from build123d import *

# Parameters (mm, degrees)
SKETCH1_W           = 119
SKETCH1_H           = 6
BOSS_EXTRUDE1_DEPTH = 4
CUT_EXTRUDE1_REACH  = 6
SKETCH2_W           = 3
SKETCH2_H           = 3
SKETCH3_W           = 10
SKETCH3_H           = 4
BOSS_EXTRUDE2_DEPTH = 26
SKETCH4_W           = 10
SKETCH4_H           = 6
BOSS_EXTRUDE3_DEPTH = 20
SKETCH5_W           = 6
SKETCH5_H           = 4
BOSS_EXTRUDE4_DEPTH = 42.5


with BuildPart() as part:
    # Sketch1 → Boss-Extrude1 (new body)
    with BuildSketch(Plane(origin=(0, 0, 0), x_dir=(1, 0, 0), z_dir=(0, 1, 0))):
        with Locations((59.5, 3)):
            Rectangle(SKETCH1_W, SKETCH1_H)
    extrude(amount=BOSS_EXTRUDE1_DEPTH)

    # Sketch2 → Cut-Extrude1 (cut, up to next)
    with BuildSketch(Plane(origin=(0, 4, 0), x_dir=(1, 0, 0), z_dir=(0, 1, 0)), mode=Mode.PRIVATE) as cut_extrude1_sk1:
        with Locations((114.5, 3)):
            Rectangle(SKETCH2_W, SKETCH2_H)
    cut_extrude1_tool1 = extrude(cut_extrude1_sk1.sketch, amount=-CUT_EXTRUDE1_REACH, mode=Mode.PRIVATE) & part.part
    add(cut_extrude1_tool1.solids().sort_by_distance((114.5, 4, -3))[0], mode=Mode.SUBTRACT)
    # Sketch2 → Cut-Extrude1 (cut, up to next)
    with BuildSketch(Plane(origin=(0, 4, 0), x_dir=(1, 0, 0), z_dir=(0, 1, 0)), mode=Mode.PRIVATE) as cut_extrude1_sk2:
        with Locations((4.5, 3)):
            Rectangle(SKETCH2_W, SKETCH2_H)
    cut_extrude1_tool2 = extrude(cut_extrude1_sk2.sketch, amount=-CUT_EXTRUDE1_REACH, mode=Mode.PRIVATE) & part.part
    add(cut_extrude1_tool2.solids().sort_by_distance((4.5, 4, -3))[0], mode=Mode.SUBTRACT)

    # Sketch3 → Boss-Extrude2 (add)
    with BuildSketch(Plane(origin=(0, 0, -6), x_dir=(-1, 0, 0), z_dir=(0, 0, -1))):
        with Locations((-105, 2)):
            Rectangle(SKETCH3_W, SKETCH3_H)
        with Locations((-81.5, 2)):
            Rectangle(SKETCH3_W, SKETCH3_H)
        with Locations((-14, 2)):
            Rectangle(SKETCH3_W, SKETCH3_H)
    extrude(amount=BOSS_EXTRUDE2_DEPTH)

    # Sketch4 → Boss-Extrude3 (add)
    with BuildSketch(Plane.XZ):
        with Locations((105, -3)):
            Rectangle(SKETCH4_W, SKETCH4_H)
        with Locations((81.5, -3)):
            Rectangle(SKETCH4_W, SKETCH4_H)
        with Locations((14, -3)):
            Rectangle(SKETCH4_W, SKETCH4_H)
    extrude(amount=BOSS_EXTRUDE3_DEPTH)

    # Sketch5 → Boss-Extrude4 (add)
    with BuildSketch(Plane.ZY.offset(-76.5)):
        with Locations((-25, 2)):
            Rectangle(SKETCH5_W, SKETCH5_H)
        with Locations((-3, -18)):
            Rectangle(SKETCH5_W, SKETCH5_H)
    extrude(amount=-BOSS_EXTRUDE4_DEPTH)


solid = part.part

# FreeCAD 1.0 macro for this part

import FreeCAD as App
import Part
import Sketcher

V = App.Vector
Q = App.Units.Quantity


def add_polygon(sketch, points):
    """Adds a closed chain of lines whose ends are joined by coincident constraints."""
    first, n = sketch.GeometryCount, len(points)
    for a, b in zip(points, points[1:] + points[:1]):
        sketch.addGeometry(Part.LineSegment(App.Vector(*a, 0), App.Vector(*b, 0)), False)
    for i in range(n):
        sketch.addConstraint(Sketcher.Constraint("Coincident", first + i, 2, first + (i + 1) % n, 1))

doc = App.newDocument("Part")
body = doc.addObject("PartDesign::Body", "Body")

# Sketch on XZ plane
sketch1 = body.newObject("Sketcher::SketchObject", "Sketch")
sketch1.AttachmentSupport = (doc.getObject("XZ_Plane"), [""])
sketch1.MapMode = "FlatFace"
add_polygon(sketch1, [(0, -6), (0, 0), (119, 0), (119, -6)])  # lines 0-3
sketch1.addConstraint([
    Sketcher.Constraint("Vertical", 0),
    Sketcher.Constraint("Horizontal", 1),
    Sketcher.Constraint("Vertical", 2),
    Sketcher.Constraint("Horizontal", 3),
    Sketcher.Constraint("Coincident", 0, 2, -1, 1),
    Sketcher.Constraint("DistanceX", 1, 1, 1, 2, Q("119 mm")),
    Sketcher.Constraint("DistanceY", 0, 1, 0, 2, Q("6 mm")),
])
pad1 = body.newObject("PartDesign::Pad", "Pad")
pad1.Profile = sketch1
pad1.Length = 4
pad1.Reversed = True

# Sketch on XZ plane
sketch2 = body.newObject("Sketcher::SketchObject", "Sketch001")
sketch2.AttachmentSupport = (doc.getObject("XZ_Plane"), [""])
sketch2.MapMode = "FlatFace"
sketch2.AttachmentOffset = App.Placement(V(0, 0, -4), App.Rotation())
add_polygon(sketch2, [(113, -4.5), (113, -1.5), (116, -1.5), (116, -4.5)])  # lines 0-3
sketch2.addConstraint([
    Sketcher.Constraint("Vertical", 0),
    Sketcher.Constraint("Horizontal", 1),
    Sketcher.Constraint("Vertical", 2),
    Sketcher.Constraint("Horizontal", 3),
    Sketcher.Constraint("Equal", 3, 0),
    Sketcher.Constraint("DistanceX", 1, 1, 1, 2, Q("3 mm")),
    Sketcher.Constraint("DistanceX", -1, 1, 0, 2, Q("113 mm")),
    Sketcher.Constraint("DistanceY", 0, 2, -1, 1, Q("1.5 mm")),
])
pocket1 = body.newObject("PartDesign::Pocket", "Pocket")
pocket1.Profile = sketch2
pocket1.Type = "UpToFirst"
pocket1.Reversed = True

# Sketch on XZ plane
sketch3 = body.newObject("Sketcher::SketchObject", "Sketch002")
sketch3.AttachmentSupport = (doc.getObject("XZ_Plane"), [""])
sketch3.MapMode = "FlatFace"
sketch3.AttachmentOffset = App.Placement(V(0, 0, -4), App.Rotation())
add_polygon(sketch3, [(3, -4.5), (3, -1.5), (6, -1.5), (6, -4.5)])  # lines 0-3
sketch3.addConstraint([
    Sketcher.Constraint("Vertical", 0),
    Sketcher.Constraint("Horizontal", 1),
    Sketcher.Constraint("Vertical", 2),
    Sketcher.Constraint("Horizontal", 3),
    Sketcher.Constraint("Equal", 3, 0),
    Sketcher.Constraint("DistanceX", 1, 1, 1, 2, Q("3 mm")),
    Sketcher.Constraint("DistanceX", -1, 1, 0, 2, Q("3 mm")),
    Sketcher.Constraint("DistanceY", 0, 2, -1, 1, Q("1.5 mm")),
])
pocket2 = body.newObject("PartDesign::Pocket", "Pocket001")
pocket2.Profile = sketch3
pocket2.Type = "UpToFirst"
pocket2.Reversed = True

# Sketch on XY plane
sketch4 = body.newObject("Sketcher::SketchObject", "Sketch003")
sketch4.AttachmentSupport = (doc.getObject("XY_Plane"), [""])
sketch4.MapMode = "FlatFace"
sketch4.AttachmentOffset = App.Placement(V(0, 0, -6), App.Rotation())
add_polygon(sketch4, [(110, 4), (110, 0), (100, 0), (100, 4)])  # lines 0-3
add_polygon(sketch4, [(86.5, 4), (86.5, 0), (76.5, 0), (76.5, 4)])  # lines 4-7
add_polygon(sketch4, [(19, 4), (19, 0), (9, 0), (9, 4)])  # lines 8-11
sketch4.addConstraint([
    Sketcher.Constraint("Vertical", 0),
    Sketcher.Constraint("Horizontal", 1),
    Sketcher.Constraint("Vertical", 2),
    Sketcher.Constraint("Horizontal", 3),
    Sketcher.Constraint("Vertical", 4),
    Sketcher.Constraint("Horizontal", 5),
    Sketcher.Constraint("Vertical", 6),
    Sketcher.Constraint("Horizontal", 7),
    Sketcher.Constraint("Vertical", 8),
    Sketcher.Constraint("Horizontal", 9),
    Sketcher.Constraint("Vertical", 10),
    Sketcher.Constraint("Horizontal", 11),
    Sketcher.Constraint("PointOnObject", 0, 2, -1),
    Sketcher.Constraint("PointOnObject", 4, 2, -1),
    Sketcher.Constraint("PointOnObject", 8, 2, -1),
    Sketcher.Constraint("Horizontal", 3, 2, 6, 2),
    Sketcher.Constraint("Horizontal", 7, 2, 10, 2),
    Sketcher.Constraint("Equal", 3, 5),
    Sketcher.Constraint("Equal", 7, 9),
    Sketcher.Constraint("DistanceX", 1, 2, 1, 1, Q("10 mm")),
    Sketcher.Constraint("DistanceY", 0, 2, 0, 1, Q("4 mm")),
    Sketcher.Constraint("DistanceX", -1, 1, 0, 2, Q("110 mm")),
    Sketcher.Constraint("DistanceX", -1, 1, 8, 2, Q("19 mm")),
    Sketcher.Constraint("DistanceX", -1, 1, 4, 2, Q("86.5 mm")),
])
pad2 = body.newObject("PartDesign::Pad", "Pad001")
pad2.Profile = sketch4
pad2.Length = 26
pad2.Reversed = True

# Sketch on XZ plane
sketch5 = body.newObject("Sketcher::SketchObject", "Sketch004")
sketch5.AttachmentSupport = (doc.getObject("XZ_Plane"), [""])
sketch5.MapMode = "FlatFace"
add_polygon(sketch5, [(100, 0), (100, -6), (110, -6), (110, 0)])  # lines 0-3
add_polygon(sketch5, [(76, 0), (76, -6), (86, -6), (86, 0)])  # lines 4-7
add_polygon(sketch5, [(9, 0), (9, -6), (19, -6), (19, 0)])  # lines 8-11
sketch5.addConstraint([
    Sketcher.Constraint("Vertical", 0),
    Sketcher.Constraint("Horizontal", 1),
    Sketcher.Constraint("Vertical", 2),
    Sketcher.Constraint("Horizontal", 3),
    Sketcher.Constraint("Vertical", 4),
    Sketcher.Constraint("Horizontal", 5),
    Sketcher.Constraint("Vertical", 6),
    Sketcher.Constraint("Horizontal", 7),
    Sketcher.Constraint("Vertical", 8),
    Sketcher.Constraint("Horizontal", 9),
    Sketcher.Constraint("Vertical", 10),
    Sketcher.Constraint("Horizontal", 11),
    Sketcher.Constraint("PointOnObject", 2, 2, -1),
    Sketcher.Constraint("PointOnObject", 6, 2, -1),
    Sketcher.Constraint("PointOnObject", 10, 2, -1),
    Sketcher.Constraint("Horizontal", 1, 2, 4, 2),
    Sketcher.Constraint("Horizontal", 5, 2, 8, 2),
    Sketcher.Constraint("Equal", 3, 5),
    Sketcher.Constraint("Equal", 7, 9),
    Sketcher.Constraint("DistanceX", 1, 1, 1, 2, Q("10 mm")),
    Sketcher.Constraint("DistanceY", 0, 2, 0, 1, Q("6 mm")),
    Sketcher.Constraint("DistanceX", -1, 1, 0, 2, Q("100 mm")),
    Sketcher.Constraint("DistanceX", -1, 1, 8, 2, Q("9 mm")),
    Sketcher.Constraint("DistanceX", -1, 1, 4, 2, Q("76.5 mm")),
])
pad3 = body.newObject("PartDesign::Pad", "Pad002")
pad3.Profile = sketch5
pad3.Length = 20

# Sketch on YZ plane
sketch6 = body.newObject("Sketcher::SketchObject", "Sketch005")
sketch6.AttachmentSupport = (doc.getObject("YZ_Plane"), [""])
sketch6.MapMode = "FlatFace"
sketch6.AttachmentOffset = App.Placement(V(0, 0, 76.5), App.Rotation())
add_polygon(sketch6, [(4, -28), (0, -28), (0, -22), (4, -22)])  # lines 0-3
add_polygon(sketch6, [(-16, -6), (-20, -6), (-20, 0), (-16, 0)])  # lines 4-7
sketch6.addConstraint([
    Sketcher.Constraint("Horizontal", 0),
    Sketcher.Constraint("Vertical", 1),
    Sketcher.Constraint("Horizontal", 2),
    Sketcher.Constraint("Vertical", 3),
    Sketcher.Constraint("Horizontal", 4),
    Sketcher.Constraint("Vertical", 5),
    Sketcher.Constraint("Horizontal", 6),
    Sketcher.Constraint("Vertical", 7),
    Sketcher.Constraint("PointOnObject", 0, 2, -2),
    Sketcher.Constraint("PointOnObject", 5, 2, -1),
    Sketcher.Constraint("Equal", 2, 4),
    Sketcher.Constraint("Equal", 3, 5),
    Sketcher.Constraint("DistanceX", 0, 2, 0, 1, Q("4 mm")),
    Sketcher.Constraint("DistanceY", 1, 1, 1, 2, Q("6 mm")),
    Sketcher.Constraint("DistanceY", 0, 2, -1, 1, Q("28 mm")),
    Sketcher.Constraint("DistanceX", 4, 2, -1, 1, Q("20 mm")),
])
pad4 = body.newObject("PartDesign::Pad", "Pad003")
pad4.Profile = sketch6
pad4.Length = 42.5

doc.recompute()
